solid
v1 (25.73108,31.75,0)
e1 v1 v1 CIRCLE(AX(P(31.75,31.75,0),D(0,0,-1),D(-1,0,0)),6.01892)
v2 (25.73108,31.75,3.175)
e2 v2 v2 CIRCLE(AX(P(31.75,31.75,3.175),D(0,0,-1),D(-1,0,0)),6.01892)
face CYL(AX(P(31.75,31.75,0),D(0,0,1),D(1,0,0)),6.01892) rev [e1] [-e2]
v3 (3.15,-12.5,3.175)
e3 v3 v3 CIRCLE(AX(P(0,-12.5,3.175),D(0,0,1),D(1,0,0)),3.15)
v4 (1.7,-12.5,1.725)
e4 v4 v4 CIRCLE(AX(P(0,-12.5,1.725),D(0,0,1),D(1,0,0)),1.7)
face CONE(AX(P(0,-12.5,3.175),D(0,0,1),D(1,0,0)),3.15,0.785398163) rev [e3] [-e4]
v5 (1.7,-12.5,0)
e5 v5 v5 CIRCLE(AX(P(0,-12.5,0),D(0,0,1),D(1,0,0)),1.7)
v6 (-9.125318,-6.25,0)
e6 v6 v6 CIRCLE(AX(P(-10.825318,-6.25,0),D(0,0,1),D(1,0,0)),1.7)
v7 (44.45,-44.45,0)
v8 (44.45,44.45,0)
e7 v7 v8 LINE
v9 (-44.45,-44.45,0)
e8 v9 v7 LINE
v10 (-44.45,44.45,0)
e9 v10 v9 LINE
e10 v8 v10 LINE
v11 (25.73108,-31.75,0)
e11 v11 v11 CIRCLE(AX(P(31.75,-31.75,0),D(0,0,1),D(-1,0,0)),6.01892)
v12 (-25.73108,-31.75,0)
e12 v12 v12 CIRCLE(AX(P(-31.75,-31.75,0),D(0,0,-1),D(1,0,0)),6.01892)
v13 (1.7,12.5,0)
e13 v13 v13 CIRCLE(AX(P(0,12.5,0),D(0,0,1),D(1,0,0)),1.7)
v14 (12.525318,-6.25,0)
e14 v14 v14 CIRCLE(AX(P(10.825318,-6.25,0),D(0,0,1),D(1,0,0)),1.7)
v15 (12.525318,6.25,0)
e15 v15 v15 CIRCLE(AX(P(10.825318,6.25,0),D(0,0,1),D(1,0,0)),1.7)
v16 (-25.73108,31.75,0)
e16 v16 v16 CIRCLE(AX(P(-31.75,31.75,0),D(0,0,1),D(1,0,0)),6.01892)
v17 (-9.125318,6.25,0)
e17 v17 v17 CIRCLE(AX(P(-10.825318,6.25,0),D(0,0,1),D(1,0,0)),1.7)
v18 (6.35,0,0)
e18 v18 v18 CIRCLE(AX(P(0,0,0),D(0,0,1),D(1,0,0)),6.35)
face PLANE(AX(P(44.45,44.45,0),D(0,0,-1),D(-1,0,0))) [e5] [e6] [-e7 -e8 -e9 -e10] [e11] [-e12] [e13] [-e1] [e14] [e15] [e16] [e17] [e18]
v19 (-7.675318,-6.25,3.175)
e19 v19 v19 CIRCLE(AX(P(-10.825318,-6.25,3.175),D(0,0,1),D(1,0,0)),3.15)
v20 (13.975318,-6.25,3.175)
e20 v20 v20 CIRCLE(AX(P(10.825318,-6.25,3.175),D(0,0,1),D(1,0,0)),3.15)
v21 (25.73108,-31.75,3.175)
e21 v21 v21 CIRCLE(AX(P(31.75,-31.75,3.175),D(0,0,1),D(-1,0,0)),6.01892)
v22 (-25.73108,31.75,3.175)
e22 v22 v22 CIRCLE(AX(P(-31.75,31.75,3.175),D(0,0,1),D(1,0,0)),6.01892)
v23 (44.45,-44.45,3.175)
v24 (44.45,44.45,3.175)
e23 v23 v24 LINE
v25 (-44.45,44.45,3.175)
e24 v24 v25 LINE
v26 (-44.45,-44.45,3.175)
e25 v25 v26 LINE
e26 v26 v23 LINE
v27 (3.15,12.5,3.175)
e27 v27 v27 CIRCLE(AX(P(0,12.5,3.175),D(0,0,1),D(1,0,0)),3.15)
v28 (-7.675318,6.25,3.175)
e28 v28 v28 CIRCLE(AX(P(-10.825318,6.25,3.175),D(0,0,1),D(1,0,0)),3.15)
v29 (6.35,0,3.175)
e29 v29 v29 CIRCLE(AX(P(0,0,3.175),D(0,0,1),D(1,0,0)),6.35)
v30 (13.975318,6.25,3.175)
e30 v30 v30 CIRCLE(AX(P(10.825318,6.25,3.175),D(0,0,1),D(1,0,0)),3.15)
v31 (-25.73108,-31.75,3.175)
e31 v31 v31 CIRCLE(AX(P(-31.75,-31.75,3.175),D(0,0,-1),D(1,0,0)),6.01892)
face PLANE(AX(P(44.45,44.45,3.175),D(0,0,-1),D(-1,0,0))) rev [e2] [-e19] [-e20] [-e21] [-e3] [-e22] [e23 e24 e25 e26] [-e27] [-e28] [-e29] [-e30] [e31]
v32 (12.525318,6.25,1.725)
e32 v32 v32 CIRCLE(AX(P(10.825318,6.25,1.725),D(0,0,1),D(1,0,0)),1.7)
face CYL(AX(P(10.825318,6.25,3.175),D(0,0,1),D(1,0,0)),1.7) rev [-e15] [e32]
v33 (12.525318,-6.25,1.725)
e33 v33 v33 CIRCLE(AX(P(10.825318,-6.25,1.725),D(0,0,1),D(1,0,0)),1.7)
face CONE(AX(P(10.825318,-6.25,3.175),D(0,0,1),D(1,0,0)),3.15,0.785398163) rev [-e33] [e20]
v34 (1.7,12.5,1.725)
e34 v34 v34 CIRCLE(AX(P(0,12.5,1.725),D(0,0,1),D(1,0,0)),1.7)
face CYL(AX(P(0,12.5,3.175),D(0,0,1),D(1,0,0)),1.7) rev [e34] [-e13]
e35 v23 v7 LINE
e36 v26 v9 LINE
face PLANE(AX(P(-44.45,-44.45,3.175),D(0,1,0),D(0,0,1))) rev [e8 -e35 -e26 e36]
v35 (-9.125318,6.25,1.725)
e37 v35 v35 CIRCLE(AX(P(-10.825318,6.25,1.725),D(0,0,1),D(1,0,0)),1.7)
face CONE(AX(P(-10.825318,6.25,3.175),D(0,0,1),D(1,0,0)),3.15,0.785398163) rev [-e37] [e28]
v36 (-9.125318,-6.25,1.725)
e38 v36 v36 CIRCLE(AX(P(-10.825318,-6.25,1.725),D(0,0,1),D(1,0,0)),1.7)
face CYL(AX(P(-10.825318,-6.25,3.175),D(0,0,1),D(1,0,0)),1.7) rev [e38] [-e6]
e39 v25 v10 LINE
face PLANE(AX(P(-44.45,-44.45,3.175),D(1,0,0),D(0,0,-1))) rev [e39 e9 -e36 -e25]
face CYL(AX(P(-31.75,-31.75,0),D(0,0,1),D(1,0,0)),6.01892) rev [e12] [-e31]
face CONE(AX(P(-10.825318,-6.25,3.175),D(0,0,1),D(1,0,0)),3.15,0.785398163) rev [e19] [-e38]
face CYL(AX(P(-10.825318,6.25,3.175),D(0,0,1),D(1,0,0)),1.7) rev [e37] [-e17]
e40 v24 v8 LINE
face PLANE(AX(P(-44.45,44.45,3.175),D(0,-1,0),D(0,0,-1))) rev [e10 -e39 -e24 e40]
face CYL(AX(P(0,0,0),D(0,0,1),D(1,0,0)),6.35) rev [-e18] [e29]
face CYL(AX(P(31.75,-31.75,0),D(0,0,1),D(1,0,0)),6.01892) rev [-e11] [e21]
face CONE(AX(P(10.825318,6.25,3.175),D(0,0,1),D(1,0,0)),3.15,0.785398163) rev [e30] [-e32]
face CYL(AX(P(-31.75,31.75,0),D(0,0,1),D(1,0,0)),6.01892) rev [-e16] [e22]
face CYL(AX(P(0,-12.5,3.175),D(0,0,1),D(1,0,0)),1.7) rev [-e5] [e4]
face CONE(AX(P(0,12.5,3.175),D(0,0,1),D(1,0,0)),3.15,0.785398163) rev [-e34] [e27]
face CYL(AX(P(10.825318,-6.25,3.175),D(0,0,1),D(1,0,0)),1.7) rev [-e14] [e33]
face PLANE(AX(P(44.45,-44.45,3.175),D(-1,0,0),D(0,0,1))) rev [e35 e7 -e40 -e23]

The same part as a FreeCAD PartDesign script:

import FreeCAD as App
import Part
import Sketcher
Q = App.Units.Quantity

doc = App.newDocument("Part")
body = doc.addObject("PartDesign::Body", "Body")

# Sketch on XY plane
sketch1 = body.newObject("Sketcher::SketchObject", "Sketch")
sketch1.AttachmentSupport = (doc.getObject("XY_Plane"), [""])
sketch1.MapMode = "FlatFace"
sketch1.addGeometry([
    Part.LineSegment(App.Vector(-44, 44, 0), App.Vector(-44, -44, 0)),
    Part.LineSegment(App.Vector(-44, -44, 0), App.Vector(44, -44, 0)),
    Part.LineSegment(App.Vector(44, -44, 0), App.Vector(44, 44, 0)),
    Part.LineSegment(App.Vector(44, 44, 0), App.Vector(-44, 44, 0)),
], False)
sketch1.addConstraint([
    Sketcher.Constraint("Coincident", 0, 2, 1, 1),
    Sketcher.Constraint("Coincident", 1, 2, 2, 1),
    Sketcher.Constraint("Coincident", 2, 2, 3, 1),
    Sketcher.Constraint("Coincident", 3, 2, 0, 1),
    Sketcher.Constraint("Vertical", 0),
    Sketcher.Constraint("Horizontal", 1),
    Sketcher.Constraint("Vertical", 2),
    Sketcher.Constraint("Horizontal", 3),
    Sketcher.Constraint("Symmetric", 0, 2, 2, 2, -1, 1),
    Sketcher.Constraint("Equal", 3, 0),
    Sketcher.Constraint("DistanceX", 1, 1, 1, 2, Q("3.5 in")),
])
pad1 = body.newObject("PartDesign::Pad", "Pad")
pad1.Profile = sketch1
pad1.Length = Q("0.125 in")

# Sketch on XY plane
sketch2 = body.newObject("Sketcher::SketchObject", "Sketch001")
sketch2.AttachmentSupport = (doc.getObject("XY_Plane"), [""])
sketch2.MapMode = "FlatFace"
sketch2.AttachmentOffset = App.Placement(App.Vector(0, 0, 0.125 * 25.4), App.Rotation())
sketch2.addGeometry(Part.Circle(App.Vector(-32, 32, 0), App.Vector(0, 0, 1), 6), False)
sketch2.addConstraint([
    Sketcher.Constraint("DistanceX", 0, 3, -1, 1, Q("1.25 in")),
    Sketcher.Constraint("DistanceY", -1, 1, 0, 3, Q("1.25 in")),
    Sketcher.Constraint("Diameter", 0, 12.037839),
])
pocket1 = body.newObject("PartDesign::Pocket", "Pocket")
pocket1.Profile = sketch2
pocket1.Type = "ThroughAll"
doc.recompute()

mirrored = body.newObject("PartDesign::Mirrored", "Mirrored")
mirrored.Originals = [pocket1]
mirrored.MirrorPlane = (doc.getObject("YZ_Plane"), [""])
body.Tip = mirrored
doc.recompute()

mirrored2 = body.newObject("PartDesign::Mirrored", "Mirrored001")
mirrored2.Originals = [pocket1]
mirrored2.MirrorPlane = (doc.getObject("XZ_Plane"), [""])
body.Tip = mirrored2

# Sketch on XY plane
sketch3 = body.newObject("Sketcher::SketchObject", "Sketch002")
sketch3.AttachmentSupport = (doc.getObject("XY_Plane"), [""])
sketch3.MapMode = "FlatFace"
sketch3.AttachmentOffset = App.Placement(App.Vector(0, 0, 0.125 * 25.4), App.Rotation())
sketch3.addGeometry(Part.Circle(App.Vector(32, -32, 0), App.Vector(0, 0, 1), 6), False)
sketch3.addConstraint([
    Sketcher.Constraint("DistanceX", -1, 1, 0, 3, Q("1.25 in")),
    Sketcher.Constraint("DistanceY", 0, 3, -1, 1, Q("1.25 in")),
    Sketcher.Constraint("Diameter", 0, 12.037839),
])
pocket2 = body.newObject("PartDesign::Pocket", "Pocket001")
pocket2.Profile = sketch3
pocket2.Type = "ThroughAll"

# Sketch on XY plane
sketch4 = body.newObject("Sketcher::SketchObject", "Sketch003")
sketch4.AttachmentSupport = (doc.getObject("XY_Plane"), [""])
sketch4.MapMode = "FlatFace"
sketch4.AttachmentOffset = App.Placement(App.Vector(0, 0, 0.125 * 25.4), App.Rotation())
sketch4.addGeometry(Part.Circle(App.Vector(0, 0, 0), App.Vector(0, 0, 1), 6), False)
sketch4.addConstraint([
    Sketcher.Constraint("Coincident", 0, 3, -1, 1),
    Sketcher.Constraint("Diameter", 0, Q("0.5 in")),
])
pocket3 = body.newObject("PartDesign::Pocket", "Pocket002")
pocket3.Profile = sketch4
pocket3.Type = "ThroughAll"

# Sketch on XY plane
sketch5 = body.newObject("Sketcher::SketchObject", "Sketch004")
sketch5.AttachmentSupport = (doc.getObject("XY_Plane"), [""])
sketch5.MapMode = "FlatFace"
sketch5.AttachmentOffset = App.Placement(App.Vector(0, 0, 0.125 * 25.4), App.Rotation())
sketch5.addGeometry(Part.Circle(App.Vector(0, 12.5, 0), App.Vector(0, 0, 1), 1.7), False)
sketch5.addConstraint([
    Sketcher.Constraint("PointOnObject", 0, 3, -2),
    Sketcher.Constraint("Diameter", 0, 3.4),
    Sketcher.Constraint("DistanceY", -1, 1, 0, 3, 12.5),
])
doc.recompute()
hole = body.newObject("PartDesign::Hole", "Hole")
hole.Profile = sketch5
hole.ThreadType = "None"
hole.Diameter = 3.4
hole.DepthType = "ThroughAll"
hole.HoleCutType = "Countersink"
hole.HoleCutDiameter = 6.3
hole.HoleCutCountersinkAngle = 90
doc.recompute()

polarpattern = body.newObject("PartDesign::PolarPattern", "PolarPattern")
polarpattern.Originals = [hole]
polarpattern.Axis = (doc.getObject("Z_Axis"), [""])
polarpattern.Angle = 360
polarpattern.Occurrences = 6
body.Tip = polarpattern

doc.recompute()
